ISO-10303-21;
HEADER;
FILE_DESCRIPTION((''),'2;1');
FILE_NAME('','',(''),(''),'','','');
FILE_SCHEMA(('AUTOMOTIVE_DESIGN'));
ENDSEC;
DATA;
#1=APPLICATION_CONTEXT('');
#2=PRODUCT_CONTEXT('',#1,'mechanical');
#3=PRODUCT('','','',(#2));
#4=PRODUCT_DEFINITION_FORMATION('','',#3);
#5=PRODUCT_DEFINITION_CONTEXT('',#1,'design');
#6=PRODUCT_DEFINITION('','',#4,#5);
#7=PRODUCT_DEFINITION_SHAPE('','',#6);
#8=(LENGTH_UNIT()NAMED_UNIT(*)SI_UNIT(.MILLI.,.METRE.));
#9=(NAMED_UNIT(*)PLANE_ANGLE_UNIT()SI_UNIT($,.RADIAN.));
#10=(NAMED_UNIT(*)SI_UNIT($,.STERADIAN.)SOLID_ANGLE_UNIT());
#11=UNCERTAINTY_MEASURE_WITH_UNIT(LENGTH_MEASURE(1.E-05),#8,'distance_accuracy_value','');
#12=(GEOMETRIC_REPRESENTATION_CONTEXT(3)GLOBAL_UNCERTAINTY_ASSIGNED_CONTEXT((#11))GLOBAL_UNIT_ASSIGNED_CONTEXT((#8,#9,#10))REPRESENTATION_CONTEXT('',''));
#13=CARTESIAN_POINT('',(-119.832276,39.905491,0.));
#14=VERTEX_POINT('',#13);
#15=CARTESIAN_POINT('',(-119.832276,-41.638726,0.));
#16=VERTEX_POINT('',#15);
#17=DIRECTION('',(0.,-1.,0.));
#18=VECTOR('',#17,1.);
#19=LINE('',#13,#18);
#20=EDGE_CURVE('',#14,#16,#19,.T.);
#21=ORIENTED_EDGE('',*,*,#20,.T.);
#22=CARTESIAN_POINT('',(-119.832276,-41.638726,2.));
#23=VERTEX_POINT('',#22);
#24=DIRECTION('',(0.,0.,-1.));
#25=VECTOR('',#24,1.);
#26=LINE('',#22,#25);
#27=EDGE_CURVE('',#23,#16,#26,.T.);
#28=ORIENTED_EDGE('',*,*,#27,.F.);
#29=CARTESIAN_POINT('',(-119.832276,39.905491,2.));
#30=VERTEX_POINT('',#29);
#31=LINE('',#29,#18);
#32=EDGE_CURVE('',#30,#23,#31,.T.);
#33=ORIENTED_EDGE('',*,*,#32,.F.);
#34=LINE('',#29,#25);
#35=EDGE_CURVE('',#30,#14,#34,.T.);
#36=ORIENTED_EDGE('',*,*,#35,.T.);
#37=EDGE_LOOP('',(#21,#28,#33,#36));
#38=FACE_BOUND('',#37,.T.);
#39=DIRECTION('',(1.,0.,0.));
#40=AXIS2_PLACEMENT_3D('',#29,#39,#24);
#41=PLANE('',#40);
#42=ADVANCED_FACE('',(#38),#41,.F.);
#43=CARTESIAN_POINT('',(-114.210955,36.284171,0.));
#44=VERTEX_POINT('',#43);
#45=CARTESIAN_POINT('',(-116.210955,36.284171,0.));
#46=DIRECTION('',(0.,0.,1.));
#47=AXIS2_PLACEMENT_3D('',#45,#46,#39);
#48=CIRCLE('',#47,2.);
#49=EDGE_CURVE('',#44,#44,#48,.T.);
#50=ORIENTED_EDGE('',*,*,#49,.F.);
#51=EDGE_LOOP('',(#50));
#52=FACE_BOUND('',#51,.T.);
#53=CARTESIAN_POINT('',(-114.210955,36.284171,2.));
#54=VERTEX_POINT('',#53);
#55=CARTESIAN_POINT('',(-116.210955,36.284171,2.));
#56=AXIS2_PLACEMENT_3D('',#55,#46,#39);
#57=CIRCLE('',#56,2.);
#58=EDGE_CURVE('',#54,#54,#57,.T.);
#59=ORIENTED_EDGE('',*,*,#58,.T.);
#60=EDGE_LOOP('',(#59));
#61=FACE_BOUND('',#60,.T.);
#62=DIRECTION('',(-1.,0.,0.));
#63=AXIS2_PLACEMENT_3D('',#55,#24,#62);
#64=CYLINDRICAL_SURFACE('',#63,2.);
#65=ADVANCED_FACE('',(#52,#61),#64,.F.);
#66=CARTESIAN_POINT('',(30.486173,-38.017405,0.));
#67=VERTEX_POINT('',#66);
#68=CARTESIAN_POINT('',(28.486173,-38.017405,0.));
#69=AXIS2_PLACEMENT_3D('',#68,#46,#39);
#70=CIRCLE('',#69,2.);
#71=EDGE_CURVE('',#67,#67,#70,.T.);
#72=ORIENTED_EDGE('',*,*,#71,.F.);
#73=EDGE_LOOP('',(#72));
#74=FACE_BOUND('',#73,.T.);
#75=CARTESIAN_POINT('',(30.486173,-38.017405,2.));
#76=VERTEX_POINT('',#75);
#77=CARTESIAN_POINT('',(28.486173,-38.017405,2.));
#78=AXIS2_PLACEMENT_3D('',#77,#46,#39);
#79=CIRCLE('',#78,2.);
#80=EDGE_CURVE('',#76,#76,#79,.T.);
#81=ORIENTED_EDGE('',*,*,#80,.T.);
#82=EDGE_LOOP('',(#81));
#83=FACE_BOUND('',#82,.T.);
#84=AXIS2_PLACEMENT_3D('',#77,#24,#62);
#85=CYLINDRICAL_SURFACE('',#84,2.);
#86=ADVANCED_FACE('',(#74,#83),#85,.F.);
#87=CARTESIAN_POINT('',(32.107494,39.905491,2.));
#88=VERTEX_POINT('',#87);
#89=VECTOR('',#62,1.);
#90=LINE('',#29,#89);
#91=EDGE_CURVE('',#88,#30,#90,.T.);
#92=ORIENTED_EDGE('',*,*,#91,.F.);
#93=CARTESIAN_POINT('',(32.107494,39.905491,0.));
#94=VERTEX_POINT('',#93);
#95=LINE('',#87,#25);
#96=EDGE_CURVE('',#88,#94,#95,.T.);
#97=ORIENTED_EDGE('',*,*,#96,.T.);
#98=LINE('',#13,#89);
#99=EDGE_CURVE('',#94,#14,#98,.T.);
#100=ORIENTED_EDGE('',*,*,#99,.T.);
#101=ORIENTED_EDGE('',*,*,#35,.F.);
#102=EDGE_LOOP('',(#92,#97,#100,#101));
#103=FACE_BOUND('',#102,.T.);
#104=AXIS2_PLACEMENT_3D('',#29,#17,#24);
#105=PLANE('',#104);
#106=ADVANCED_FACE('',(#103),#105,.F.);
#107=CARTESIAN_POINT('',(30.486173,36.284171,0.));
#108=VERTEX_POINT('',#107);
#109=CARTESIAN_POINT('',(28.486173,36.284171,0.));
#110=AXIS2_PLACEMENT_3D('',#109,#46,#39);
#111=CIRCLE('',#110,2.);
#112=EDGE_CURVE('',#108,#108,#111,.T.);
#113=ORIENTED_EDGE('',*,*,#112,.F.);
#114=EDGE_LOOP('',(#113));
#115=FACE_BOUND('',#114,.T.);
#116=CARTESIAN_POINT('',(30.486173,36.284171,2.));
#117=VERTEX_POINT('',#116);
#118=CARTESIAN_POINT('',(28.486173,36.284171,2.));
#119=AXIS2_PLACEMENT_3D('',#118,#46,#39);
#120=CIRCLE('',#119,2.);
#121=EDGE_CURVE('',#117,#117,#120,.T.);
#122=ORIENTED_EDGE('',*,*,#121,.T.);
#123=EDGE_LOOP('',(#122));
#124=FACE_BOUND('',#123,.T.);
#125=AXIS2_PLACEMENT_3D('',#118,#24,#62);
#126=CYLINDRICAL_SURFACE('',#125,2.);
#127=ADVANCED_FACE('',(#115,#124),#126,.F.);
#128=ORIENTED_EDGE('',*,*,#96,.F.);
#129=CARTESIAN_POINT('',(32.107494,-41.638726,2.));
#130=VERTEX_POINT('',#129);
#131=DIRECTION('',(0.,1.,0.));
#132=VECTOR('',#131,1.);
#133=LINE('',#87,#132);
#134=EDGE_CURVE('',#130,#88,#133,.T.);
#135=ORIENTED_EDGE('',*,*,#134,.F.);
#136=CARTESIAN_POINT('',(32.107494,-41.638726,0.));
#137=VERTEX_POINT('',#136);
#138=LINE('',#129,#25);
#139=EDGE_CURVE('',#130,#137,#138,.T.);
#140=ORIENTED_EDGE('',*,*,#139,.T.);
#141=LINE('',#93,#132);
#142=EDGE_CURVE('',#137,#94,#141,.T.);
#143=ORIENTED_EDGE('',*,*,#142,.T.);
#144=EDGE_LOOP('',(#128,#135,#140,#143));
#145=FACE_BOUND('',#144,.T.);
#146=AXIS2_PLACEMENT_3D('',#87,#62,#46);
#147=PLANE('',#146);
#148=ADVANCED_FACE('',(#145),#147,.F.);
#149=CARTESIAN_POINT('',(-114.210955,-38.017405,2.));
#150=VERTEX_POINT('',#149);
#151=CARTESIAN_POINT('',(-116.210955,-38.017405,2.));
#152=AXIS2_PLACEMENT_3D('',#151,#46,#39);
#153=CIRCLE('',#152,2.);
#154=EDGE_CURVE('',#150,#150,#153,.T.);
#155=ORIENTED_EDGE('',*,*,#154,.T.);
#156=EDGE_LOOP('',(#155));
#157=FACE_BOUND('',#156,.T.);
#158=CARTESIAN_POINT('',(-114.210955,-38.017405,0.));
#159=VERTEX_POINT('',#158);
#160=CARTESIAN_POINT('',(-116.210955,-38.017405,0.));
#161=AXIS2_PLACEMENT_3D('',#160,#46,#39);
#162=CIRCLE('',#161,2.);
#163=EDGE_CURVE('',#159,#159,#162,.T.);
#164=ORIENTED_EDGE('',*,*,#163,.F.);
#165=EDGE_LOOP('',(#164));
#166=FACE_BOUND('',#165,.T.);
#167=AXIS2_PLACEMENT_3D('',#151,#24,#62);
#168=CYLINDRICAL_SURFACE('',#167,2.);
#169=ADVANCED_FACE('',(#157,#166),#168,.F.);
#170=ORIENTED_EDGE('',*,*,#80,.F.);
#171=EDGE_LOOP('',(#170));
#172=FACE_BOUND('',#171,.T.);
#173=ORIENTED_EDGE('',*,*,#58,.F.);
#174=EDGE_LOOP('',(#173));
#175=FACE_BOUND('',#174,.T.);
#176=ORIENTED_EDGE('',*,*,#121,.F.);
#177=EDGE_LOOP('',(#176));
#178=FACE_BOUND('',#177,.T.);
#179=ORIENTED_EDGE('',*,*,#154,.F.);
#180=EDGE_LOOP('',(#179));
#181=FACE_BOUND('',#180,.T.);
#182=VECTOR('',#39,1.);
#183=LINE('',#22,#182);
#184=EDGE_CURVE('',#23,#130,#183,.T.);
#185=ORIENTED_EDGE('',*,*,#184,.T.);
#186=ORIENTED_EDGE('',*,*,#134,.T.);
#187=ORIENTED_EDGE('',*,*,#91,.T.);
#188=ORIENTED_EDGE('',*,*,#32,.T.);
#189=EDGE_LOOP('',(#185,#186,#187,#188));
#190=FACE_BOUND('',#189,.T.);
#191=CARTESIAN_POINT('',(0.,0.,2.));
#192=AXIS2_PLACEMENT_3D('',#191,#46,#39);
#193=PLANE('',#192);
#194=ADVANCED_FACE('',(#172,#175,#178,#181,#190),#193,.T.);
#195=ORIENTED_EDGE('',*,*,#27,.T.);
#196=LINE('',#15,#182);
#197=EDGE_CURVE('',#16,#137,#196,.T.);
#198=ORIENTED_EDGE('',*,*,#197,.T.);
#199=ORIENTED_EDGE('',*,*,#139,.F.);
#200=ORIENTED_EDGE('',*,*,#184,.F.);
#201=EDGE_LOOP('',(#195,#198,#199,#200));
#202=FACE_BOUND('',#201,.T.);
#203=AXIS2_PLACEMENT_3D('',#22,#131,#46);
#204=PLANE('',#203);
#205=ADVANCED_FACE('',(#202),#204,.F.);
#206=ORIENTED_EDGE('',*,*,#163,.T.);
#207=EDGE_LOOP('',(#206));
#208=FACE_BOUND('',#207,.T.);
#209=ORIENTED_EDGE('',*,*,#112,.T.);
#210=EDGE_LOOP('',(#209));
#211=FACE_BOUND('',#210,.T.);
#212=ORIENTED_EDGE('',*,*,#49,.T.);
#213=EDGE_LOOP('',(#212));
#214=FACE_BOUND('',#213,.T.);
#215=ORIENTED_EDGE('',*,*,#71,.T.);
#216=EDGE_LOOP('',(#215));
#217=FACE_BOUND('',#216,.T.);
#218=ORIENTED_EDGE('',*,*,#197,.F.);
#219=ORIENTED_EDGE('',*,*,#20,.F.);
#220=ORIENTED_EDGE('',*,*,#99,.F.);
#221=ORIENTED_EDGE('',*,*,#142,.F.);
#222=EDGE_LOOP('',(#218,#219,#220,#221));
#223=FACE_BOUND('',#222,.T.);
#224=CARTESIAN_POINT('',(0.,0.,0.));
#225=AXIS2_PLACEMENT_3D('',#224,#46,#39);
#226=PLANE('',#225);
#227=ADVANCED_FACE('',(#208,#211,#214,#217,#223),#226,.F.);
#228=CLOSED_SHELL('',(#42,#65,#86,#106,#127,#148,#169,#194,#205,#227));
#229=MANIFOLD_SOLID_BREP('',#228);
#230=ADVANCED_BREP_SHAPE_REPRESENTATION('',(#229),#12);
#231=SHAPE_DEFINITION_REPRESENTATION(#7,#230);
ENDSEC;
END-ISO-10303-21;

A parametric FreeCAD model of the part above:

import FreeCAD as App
import Part
import Sketcher

V = App.Vector


def add_polygon(sketch, points):
    """Adds a closed chain of lines whose ends are joined by coincident constraints."""
    first, n = sketch.GeometryCount, len(points)
    for a, b in zip(points, points[1:] + points[:1]):
        sketch.addGeometry(Part.LineSegment(App.Vector(*a, 0), App.Vector(*b, 0)), False)
    for i in range(n):
        sketch.addConstraint(Sketcher.Constraint("Coincident", first + i, 2, first + (i + 1) % n, 1))

doc = App.newDocument("Part")
body = doc.addObject("PartDesign::Body", "Body")

sketch1 = doc.addObject("Sketcher::SketchObject", "Sketch")
body.addObject(sketch1)
sketch1.AttachmentSupport = (doc.XY_Plane, [""])
sketch1.MapMode = "FlatFace"
add_polygon(sketch1, [(-119.8, 39.9), (-119.8, -41.6), (32.1, -41.6), (32.1, 39.9)])
sketch1.addGeometry(Part.Circle(V(-116.2, -38, 0), V(0, 0, 1), 2), False)
sketch1.addGeometry(Part.Circle(V(28.5, -38, 0), V(0, 0, 1), 2), False)
sketch1.addGeometry(Part.Circle(V(-116.2, 36.3, 0), V(0, 0, 1), 2), False)
sketch1.addGeometry(Part.Circle(V(28.5, 36.3, 0), V(0, 0, 1), 2), False)
sketch1.addConstraint(Sketcher.Constraint("Vertical", 0))
sketch1.addConstraint(Sketcher.Constraint("Horizontal", 1))
sketch1.addConstraint(Sketcher.Constraint("Vertical", 2))
sketch1.addConstraint(Sketcher.Constraint("Horizontal", 3))
sketch1.addConstraint(Sketcher.Constraint("Equal", 4, 5))
sketch1.addConstraint(Sketcher.Constraint("Equal", 5, 6))
sketch1.addConstraint(Sketcher.Constraint("Equal", 6, 7))
sketch1.addConstraint(Sketcher.Constraint("Horizontal", 4, 3, 5, 3))
sketch1.addConstraint(Sketcher.Constraint("Horizontal", 6, 3, 7, 3))
sketch1.addConstraint(Sketcher.Constraint("Vertical", 4, 3, 6, 3))
sketch1.addConstraint(Sketcher.Constraint("Vertical", 5, 3, 7, 3))
sketch1.addConstraint(Sketcher.Constraint("Diameter", 4, 4.0))
sketch1.addConstraint(Sketcher.Constraint("DistanceX", 1, 1, 1, 2, 151.939769))
sketch1.addConstraint(Sketcher.Constraint("DistanceY", 0, 2, 0, 1, 81.544217))
sketch1.addConstraint(Sketcher.Constraint("DistanceY", -1, 1, 6, 3, 36.284171))
sketch1.addConstraint(Sketcher.Constraint("DistanceY", -1, 1, 2, 2, 39.905491))
sketch1.addConstraint(Sketcher.Constraint("DistanceX", 4, 3, 5, 3, 144.697129))
sketch1.addConstraint(Sketcher.Constraint("DistanceX", 0, 2, 4, 3, 3.62132))
sketch1.addConstraint(Sketcher.Constraint("DistanceY", 0, 2, 4, 3, 3.62132))
sketch1.addConstraint(Sketcher.Constraint("DistanceX", 4, 3, -1, 1, 116.210955))
pad1 = doc.addObject("PartDesign::Pad", "Pad")
body.addObject(pad1)
pad1.Profile = sketch1
pad1.Length = 2

doc.recompute()
